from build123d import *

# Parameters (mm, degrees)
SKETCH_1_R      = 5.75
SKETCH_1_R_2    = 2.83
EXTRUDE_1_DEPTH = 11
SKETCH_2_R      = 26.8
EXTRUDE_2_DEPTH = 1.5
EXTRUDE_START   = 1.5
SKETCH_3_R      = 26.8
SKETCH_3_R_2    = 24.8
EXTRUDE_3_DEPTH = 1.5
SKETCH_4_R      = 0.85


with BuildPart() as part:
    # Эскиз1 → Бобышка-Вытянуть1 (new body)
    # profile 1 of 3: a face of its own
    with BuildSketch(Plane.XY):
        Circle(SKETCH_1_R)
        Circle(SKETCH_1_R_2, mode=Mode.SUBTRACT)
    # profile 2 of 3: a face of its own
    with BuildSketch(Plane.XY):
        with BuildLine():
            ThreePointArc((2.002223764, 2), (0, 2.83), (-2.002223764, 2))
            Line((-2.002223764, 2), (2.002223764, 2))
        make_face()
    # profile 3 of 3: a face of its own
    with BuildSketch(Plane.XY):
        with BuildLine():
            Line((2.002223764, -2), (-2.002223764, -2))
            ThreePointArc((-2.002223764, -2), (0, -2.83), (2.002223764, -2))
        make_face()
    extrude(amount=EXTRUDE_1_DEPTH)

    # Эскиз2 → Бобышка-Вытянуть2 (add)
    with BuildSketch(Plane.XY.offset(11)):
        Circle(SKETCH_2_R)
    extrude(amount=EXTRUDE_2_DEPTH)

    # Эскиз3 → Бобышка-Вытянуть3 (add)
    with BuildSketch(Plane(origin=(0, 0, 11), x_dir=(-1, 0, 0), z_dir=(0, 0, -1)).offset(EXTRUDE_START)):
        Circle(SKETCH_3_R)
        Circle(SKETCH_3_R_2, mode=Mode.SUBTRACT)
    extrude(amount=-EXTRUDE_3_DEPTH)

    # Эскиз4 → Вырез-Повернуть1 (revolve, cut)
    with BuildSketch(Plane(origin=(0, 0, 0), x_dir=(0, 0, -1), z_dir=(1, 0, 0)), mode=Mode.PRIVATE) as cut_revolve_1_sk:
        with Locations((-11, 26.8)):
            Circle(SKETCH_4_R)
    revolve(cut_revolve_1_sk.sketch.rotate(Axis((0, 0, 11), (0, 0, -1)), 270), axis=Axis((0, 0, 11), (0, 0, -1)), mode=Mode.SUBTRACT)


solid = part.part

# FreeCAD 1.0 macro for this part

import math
import FreeCAD as App
import Part
import Sketcher
from FreeCAD import Vector
Q = App.Units.Quantity

doc = App.newDocument("Part")
body = doc.addObject("PartDesign::Body", "Body")

# Sketch on XY plane
sketch1 = doc.addObject("Sketcher::SketchObject", "Sketch")
body.addObject(sketch1)
sketch1.AttachmentSupport = (doc.XY_Plane, [""])
sketch1.MapMode = "FlatFace"
sketch1.addGeometry([
    Part.Circle(Vector(0, 0, 0), Vector(0, 0, 1), 5.75),  # 0
    Part.ArcOfCircle(Part.Circle(Vector(0, 0, 0), Vector(0, 0, 1), 2.83), math.radians(-44.968165), math.radians(44.968165)),  # 1
    Part.LineSegment(Vector(2.002224, -2, 0), Vector(-2.002224, -2, 0)),  # 2
    Part.ArcOfCircle(Part.Circle(Vector(0, 0, 0), Vector(0, 0, 1), 2.83), math.radians(135.031835), math.radians(224.968165)),  # 3
    Part.LineSegment(Vector(-2.002224, 2, 0), Vector(2.002224, 2, 0)),  # 4
], False)
sketch1.addConstraint([
    Sketcher.Constraint("Coincident", 1, 1, 2, 1),
    Sketcher.Constraint("Coincident", 2, 2, 3, 2),
    Sketcher.Constraint("Coincident", 3, 1, 4, 1),
    Sketcher.Constraint("Coincident", 4, 2, 1, 2),
    Sketcher.Constraint("Horizontal", 2),
    Sketcher.Constraint("Horizontal", 4),
    Sketcher.Constraint("Coincident", 0, 3, -1, 1),
    Sketcher.Constraint("Coincident", 1, 3, -1, 1),
    Sketcher.Constraint("Coincident", 3, 3, -1, 1),
    Sketcher.Constraint("Equal", 1, 3),
    Sketcher.Constraint("Vertical", 2, 2, 3, 1),
    Sketcher.Constraint("Diameter", 0, Q("11.5 mm")),
    Sketcher.Constraint("Radius", 1, Q("2.83 mm")),
    Sketcher.Constraint("DistanceY", 1, 1, -1, 1, Q("2 mm")),
])
pad1 = doc.addObject("PartDesign::Pad", "Pad")
body.addObject(pad1)
pad1.Profile = sketch1
pad1.Length = 11

# Sketch on XY plane
sketch2 = doc.addObject("Sketcher::SketchObject", "Sketch001")
body.addObject(sketch2)
sketch2.AttachmentSupport = (doc.XY_Plane, [""])
sketch2.MapMode = "FlatFace"
sketch2.AttachmentOffset = App.Placement(Vector(0, 0, 11), App.Rotation())
sketch2.addGeometry(Part.Circle(Vector(0, 0, 0), Vector(0, 0, 1), 26.8), False)
sketch2.addConstraint([
    Sketcher.Constraint("Coincident", 0, 3, -1, 1),
    Sketcher.Constraint("Diameter", 0, Q("53.6 mm")),
])
pad2 = doc.addObject("PartDesign::Pad", "Pad001")
body.addObject(pad2)
pad2.Profile = sketch2
pad2.Length = 1.5

# Sketch on XY plane
sketch3 = doc.addObject("Sketcher::SketchObject", "Sketch002")
body.addObject(sketch3)
sketch3.AttachmentSupport = (doc.XY_Plane, [""])
sketch3.MapMode = "FlatFace"
sketch3.AttachmentOffset = App.Placement(Vector(0, 0, 9.5), App.Rotation())
sketch3.addGeometry([
    Part.Circle(Vector(0, 0, 0), Vector(0, 0, 1), 26.8),
    Part.Circle(Vector(0, 0, 0), Vector(0, 0, 1), 24.8),
], False)
sketch3.addConstraint([
    Sketcher.Constraint("Coincident", 0, 3, -1, 1),
    Sketcher.Constraint("Coincident", 1, 3, -1, 1),
    Sketcher.Constraint("Diameter", 0, Q("53.6 mm")),
    Sketcher.Constraint("Diameter", 1, Q("49.6 mm")),
])
pad3 = doc.addObject("PartDesign::Pad", "Pad002")
body.addObject(pad3)
pad3.Profile = sketch3
pad3.Length = 1.5

# Sketch on YZ plane
sketch4 = doc.addObject("Sketcher::SketchObject", "Sketch003")
body.addObject(sketch4)
sketch4.AttachmentSupport = (doc.YZ_Plane, [""])
sketch4.MapMode = "FlatFace"
sketch4.addGeometry(Part.Circle(Vector(26.8, 11, 0), Vector(0, 0, 1), 0.85), False)
sketch4.addConstraint([
    Sketcher.Constraint("Diameter", 0, Q("1.7 mm")),
    Sketcher.Constraint("DistanceY", -1, 1, 0, 3, Q("11 mm")),
    Sketcher.Constraint("DistanceX", -1, 1, 0, 3, Q("26.8 mm")),
])
groove = doc.addObject("PartDesign::Groove", "Groove")
body.addObject(groove)
groove.Profile = sketch4
groove.ReferenceAxis = (sketch4, ["V_Axis"])
groove.Angle = 360

doc.recompute()
